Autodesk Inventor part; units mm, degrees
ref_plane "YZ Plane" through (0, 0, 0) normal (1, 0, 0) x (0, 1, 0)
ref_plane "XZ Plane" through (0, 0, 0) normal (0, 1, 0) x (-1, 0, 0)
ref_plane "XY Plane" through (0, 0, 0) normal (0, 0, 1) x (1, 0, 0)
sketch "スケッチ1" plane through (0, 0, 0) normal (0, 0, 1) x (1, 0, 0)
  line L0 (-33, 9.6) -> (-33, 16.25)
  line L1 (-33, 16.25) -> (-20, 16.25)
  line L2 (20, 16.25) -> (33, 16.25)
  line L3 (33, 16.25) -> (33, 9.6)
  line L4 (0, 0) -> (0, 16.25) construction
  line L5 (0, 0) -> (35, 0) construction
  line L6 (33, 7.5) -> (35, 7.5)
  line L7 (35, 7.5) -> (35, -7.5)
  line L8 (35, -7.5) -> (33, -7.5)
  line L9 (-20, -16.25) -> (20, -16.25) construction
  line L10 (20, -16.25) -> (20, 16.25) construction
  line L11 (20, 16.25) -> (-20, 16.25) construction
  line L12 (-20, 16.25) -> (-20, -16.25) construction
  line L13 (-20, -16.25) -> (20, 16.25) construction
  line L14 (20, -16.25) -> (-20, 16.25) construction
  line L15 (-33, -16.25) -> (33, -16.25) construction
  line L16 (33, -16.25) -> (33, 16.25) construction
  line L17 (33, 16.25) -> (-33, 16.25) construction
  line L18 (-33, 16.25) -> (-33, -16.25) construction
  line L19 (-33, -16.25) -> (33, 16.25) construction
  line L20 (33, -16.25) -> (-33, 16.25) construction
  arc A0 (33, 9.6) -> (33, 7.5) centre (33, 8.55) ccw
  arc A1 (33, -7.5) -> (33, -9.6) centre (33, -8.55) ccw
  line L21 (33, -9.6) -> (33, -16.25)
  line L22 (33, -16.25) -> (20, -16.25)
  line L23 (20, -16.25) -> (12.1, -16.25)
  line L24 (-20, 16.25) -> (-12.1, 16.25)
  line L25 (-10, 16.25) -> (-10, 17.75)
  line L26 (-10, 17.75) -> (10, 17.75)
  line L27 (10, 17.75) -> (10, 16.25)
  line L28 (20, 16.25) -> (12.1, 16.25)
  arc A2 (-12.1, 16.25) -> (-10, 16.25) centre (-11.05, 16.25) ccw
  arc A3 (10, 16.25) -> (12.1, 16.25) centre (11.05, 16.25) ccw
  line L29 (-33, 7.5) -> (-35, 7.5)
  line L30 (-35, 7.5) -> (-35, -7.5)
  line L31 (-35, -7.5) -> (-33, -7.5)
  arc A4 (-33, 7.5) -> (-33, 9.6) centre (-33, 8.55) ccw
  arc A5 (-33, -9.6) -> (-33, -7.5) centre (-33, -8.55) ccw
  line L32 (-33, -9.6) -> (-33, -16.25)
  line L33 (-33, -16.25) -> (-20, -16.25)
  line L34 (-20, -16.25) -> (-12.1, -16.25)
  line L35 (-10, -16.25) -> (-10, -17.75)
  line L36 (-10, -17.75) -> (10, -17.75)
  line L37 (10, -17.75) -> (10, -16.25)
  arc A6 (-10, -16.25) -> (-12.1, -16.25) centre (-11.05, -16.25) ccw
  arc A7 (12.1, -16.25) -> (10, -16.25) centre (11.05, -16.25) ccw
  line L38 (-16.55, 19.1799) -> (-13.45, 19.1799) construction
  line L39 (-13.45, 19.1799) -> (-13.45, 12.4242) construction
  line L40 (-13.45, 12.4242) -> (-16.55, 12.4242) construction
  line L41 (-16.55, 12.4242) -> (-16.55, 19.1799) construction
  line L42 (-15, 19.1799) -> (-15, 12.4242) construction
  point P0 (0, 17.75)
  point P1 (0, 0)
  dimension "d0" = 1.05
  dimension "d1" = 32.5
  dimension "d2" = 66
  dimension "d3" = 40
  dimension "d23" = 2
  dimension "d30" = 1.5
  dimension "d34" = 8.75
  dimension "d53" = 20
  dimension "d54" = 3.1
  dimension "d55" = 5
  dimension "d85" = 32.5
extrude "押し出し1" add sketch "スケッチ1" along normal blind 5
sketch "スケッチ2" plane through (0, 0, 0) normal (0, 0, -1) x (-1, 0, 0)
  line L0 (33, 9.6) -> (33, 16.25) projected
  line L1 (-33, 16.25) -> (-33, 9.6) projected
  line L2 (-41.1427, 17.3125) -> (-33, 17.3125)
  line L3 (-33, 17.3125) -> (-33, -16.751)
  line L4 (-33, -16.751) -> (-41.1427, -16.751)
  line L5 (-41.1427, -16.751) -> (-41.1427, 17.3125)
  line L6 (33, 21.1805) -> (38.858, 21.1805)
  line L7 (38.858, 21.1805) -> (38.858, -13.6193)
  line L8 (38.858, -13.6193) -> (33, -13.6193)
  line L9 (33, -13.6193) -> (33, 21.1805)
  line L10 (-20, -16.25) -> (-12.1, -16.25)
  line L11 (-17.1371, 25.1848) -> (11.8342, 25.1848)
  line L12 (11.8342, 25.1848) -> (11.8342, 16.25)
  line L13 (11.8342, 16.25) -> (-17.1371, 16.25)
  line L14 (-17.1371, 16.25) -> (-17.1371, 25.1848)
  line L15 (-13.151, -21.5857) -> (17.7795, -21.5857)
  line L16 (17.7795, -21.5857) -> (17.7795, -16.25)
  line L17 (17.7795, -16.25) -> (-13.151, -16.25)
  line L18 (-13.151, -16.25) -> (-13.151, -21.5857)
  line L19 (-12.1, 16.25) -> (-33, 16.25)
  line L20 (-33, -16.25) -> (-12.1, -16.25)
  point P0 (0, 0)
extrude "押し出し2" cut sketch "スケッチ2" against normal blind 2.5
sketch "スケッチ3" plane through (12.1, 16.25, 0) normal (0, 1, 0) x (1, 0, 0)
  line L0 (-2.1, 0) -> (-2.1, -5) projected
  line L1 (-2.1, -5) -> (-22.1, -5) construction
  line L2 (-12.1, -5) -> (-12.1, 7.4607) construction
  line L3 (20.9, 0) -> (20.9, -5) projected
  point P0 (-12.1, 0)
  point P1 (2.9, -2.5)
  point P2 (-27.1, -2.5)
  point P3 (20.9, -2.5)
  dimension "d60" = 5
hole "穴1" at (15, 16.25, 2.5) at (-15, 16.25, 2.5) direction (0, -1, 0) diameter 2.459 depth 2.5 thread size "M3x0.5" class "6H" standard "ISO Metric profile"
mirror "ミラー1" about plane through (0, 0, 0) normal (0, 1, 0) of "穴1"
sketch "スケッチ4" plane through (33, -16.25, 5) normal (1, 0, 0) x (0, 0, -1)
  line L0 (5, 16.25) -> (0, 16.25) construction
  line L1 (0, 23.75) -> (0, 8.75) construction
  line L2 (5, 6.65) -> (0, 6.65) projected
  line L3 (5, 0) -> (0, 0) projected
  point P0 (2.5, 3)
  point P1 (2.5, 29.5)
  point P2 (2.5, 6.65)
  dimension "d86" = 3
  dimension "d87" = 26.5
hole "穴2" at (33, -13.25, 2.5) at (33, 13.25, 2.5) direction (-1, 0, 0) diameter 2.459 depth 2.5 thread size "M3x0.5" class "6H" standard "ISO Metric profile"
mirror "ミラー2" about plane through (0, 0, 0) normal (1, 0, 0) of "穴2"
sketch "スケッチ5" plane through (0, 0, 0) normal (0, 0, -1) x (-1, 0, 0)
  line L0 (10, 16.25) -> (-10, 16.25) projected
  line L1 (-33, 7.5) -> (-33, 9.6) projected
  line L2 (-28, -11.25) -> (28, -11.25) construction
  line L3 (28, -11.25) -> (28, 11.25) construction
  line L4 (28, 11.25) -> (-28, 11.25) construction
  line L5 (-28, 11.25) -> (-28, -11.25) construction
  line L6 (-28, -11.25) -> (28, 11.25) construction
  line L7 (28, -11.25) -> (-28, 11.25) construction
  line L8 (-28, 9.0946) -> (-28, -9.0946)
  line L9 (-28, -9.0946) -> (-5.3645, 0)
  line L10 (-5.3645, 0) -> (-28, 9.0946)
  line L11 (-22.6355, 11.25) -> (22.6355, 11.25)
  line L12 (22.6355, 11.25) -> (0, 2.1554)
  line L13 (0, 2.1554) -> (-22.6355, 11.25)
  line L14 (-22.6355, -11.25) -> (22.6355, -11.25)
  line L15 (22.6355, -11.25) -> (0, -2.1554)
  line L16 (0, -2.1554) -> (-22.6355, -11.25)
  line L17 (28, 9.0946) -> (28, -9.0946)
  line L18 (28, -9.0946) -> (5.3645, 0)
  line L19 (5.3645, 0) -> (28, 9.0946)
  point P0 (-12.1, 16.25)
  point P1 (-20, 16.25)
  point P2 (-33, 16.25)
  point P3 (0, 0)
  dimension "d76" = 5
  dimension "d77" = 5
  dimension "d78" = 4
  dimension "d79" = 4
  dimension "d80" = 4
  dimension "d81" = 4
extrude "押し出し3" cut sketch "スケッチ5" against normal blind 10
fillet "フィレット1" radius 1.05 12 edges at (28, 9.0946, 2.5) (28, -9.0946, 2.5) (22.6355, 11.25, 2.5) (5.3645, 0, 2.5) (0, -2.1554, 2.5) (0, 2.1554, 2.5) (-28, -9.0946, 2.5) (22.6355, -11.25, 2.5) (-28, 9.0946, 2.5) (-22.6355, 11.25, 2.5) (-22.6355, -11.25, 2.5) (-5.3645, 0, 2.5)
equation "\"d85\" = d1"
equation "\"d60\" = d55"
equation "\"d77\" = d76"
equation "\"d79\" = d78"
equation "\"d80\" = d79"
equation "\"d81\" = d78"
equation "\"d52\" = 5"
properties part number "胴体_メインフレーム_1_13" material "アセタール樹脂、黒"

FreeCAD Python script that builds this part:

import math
import FreeCAD as App
import Part
import Sketcher
from FreeCAD import Vector
Q = App.Units.Quantity


def edges_at(feature, points):
    """Names of the edges that pass closest to the given points."""
    edges = feature.Shape.Edges
    near = lambda p: min(range(len(edges)), key=lambda i: edges[i].distToShape(Part.Vertex(*p))[0])
    return sorted({f"Edge{near(p) + 1}" for p in points})

doc = App.newDocument("Part")
body = doc.addObject("PartDesign::Body", "Body")

# Sketch on XY plane
sketch1 = body.newObject("Sketcher::SketchObject", "Sketch")
sketch1.AttachmentSupport = (doc.getObject("XY_Plane"), [""])
sketch1.MapMode = "FlatFace"
sketch1.addGeometry([
    Part.LineSegment(Vector(-33, 16.2, 0), Vector(-33, 9.6, 0)),  # 0
    Part.ArcOfCircle(Part.Circle(Vector(-33, 8.6, 0), Vector(0, 0, 1), 1.1), math.radians(-90), math.radians(90)),  # 1
    Part.LineSegment(Vector(-33, 7.5, 0), Vector(-35, 7.5, 0)),  # 2
    Part.LineSegment(Vector(-35, 7.5, 0), Vector(-35, -7.5, 0)),  # 3
    Part.LineSegment(Vector(-35, -7.5, 0), Vector(-33, -7.5, 0)),  # 4
    Part.ArcOfCircle(Part.Circle(Vector(-33, -8.6, 0), Vector(0, 0, 1), 1), math.radians(-90), math.radians(90)),  # 5
    Part.LineSegment(Vector(-33, -9.6, 0), Vector(-33, -16.2, 0)),  # 6
    Part.LineSegment(Vector(-33, -16.2, 0), Vector(-12.1, -16.2, 0)),  # 7
    Part.ArcOfCircle(Part.Circle(Vector(-11.1, -16.2, 0), Vector(0, 0, 1), 1.1), math.radians(0), math.radians(180)),  # 8
    Part.LineSegment(Vector(-10, -16.2, 0), Vector(-10, -17.8, 0)),  # 9
    Part.LineSegment(Vector(-10, -17.8, 0), Vector(10, -17.8, 0)),  # 10
    Part.LineSegment(Vector(10, -17.8, 0), Vector(10, -16.2, 0)),  # 11
    Part.ArcOfCircle(Part.Circle(Vector(11.1, -16.2, 0), Vector(0, 0, 1), 1), math.radians(0), math.radians(180)),  # 12
    Part.LineSegment(Vector(12.1, -16.2, 0), Vector(33, -16.2, 0)),  # 13
    Part.LineSegment(Vector(33, -16.2, 0), Vector(33, -9.6, 0)),  # 14
    Part.ArcOfCircle(Part.Circle(Vector(33, -8.6, 0), Vector(0, 0, 1), 1.1), math.radians(90), math.radians(270)),  # 15
    Part.LineSegment(Vector(33, -7.5, 0), Vector(35, -7.5, 0)),  # 16
    Part.LineSegment(Vector(35, -7.5, 0), Vector(35, 7.5, 0)),  # 17
    Part.LineSegment(Vector(35, 7.5, 0), Vector(33, 7.5, 0)),  # 18
    Part.ArcOfCircle(Part.Circle(Vector(33, 8.6, 0), Vector(0, 0, 1), 1), math.radians(90), math.radians(270)),  # 19
    Part.LineSegment(Vector(33, 9.6, 0), Vector(33, 16.2, 0)),  # 20
    Part.LineSegment(Vector(33, 16.2, 0), Vector(12.1, 16.2, 0)),  # 21
    Part.ArcOfCircle(Part.Circle(Vector(11.1, 16.2, 0), Vector(0, 0, 1), 1.1), math.radians(180), math.radians(360)),  # 22
    Part.LineSegment(Vector(10, 16.2, 0), Vector(10, 17.8, 0)),  # 23
    Part.LineSegment(Vector(10, 17.8, 0), Vector(-10, 17.8, 0)),  # 24
    Part.LineSegment(Vector(-10, 17.8, 0), Vector(-10, 16.2, 0)),  # 25
    Part.ArcOfCircle(Part.Circle(Vector(-11.1, 16.2, 0), Vector(0, 0, 1), 1), math.radians(180), math.radians(360)),  # 26
    Part.LineSegment(Vector(-12.1, 16.2, 0), Vector(-33, 16.2, 0)),  # 27
], False)
sketch1.addConstraint([
    Sketcher.Constraint("Coincident", 0, 2, 1, 2),
    Sketcher.Constraint("Tangent", 1, 1, 2, 1),
    Sketcher.Constraint("Coincident", 2, 2, 3, 1),
    Sketcher.Constraint("Coincident", 3, 2, 4, 1),
    Sketcher.Constraint("Tangent", 4, 2, 5, 2),
    Sketcher.Constraint("Coincident", 5, 1, 6, 1),
    Sketcher.Constraint("Coincident", 6, 2, 7, 1),
    Sketcher.Constraint("Coincident", 7, 2, 8, 2),
    Sketcher.Constraint("Tangent", 8, 1, 9, 1),
    Sketcher.Constraint("Coincident", 9, 2, 10, 1),
    Sketcher.Constraint("Coincident", 10, 2, 11, 1),
    Sketcher.Constraint("Tangent", 11, 2, 12, 2),
    Sketcher.Constraint("Coincident", 12, 1, 13, 1),
    Sketcher.Constraint("Coincident", 13, 2, 14, 1),
    Sketcher.Constraint("Coincident", 14, 2, 15, 2),
    Sketcher.Constraint("Tangent", 15, 1, 16, 1),
    Sketcher.Constraint("Coincident", 16, 2, 17, 1),
    Sketcher.Constraint("Coincident", 17, 2, 18, 1),
    Sketcher.Constraint("Tangent", 18, 2, 19, 2),
    Sketcher.Constraint("Coincident", 19, 1, 20, 1),
    Sketcher.Constraint("Coincident", 20, 2, 21, 1),
    Sketcher.Constraint("Coincident", 21, 2, 22, 2),
    Sketcher.Constraint("Tangent", 22, 1, 23, 1),
    Sketcher.Constraint("Coincident", 23, 2, 24, 1),
    Sketcher.Constraint("Coincident", 24, 2, 25, 1),
    Sketcher.Constraint("Tangent", 25, 2, 26, 2),
    Sketcher.Constraint("Coincident", 26, 1, 27, 1),
    Sketcher.Constraint("Coincident", 27, 2, 0, 1),
    Sketcher.Constraint("Vertical", 0),
    Sketcher.Constraint("Horizontal", 2),
    Sketcher.Constraint("Vertical", 3),
    Sketcher.Constraint("Horizontal", 4),
    Sketcher.Constraint("Vertical", 6),
    Sketcher.Constraint("Horizontal", 7),
    Sketcher.Constraint("Vertical", 9),
    Sketcher.Constraint("Horizontal", 10),
    Sketcher.Constraint("Vertical", 11),
    Sketcher.Constraint("Horizontal", 13),
    Sketcher.Constraint("Vertical", 14),
    Sketcher.Constraint("Horizontal", 16),
    Sketcher.Constraint("Vertical", 17),
    Sketcher.Constraint("Horizontal", 18),
    Sketcher.Constraint("Vertical", 20),
    Sketcher.Constraint("Horizontal", 21),
    Sketcher.Constraint("Vertical", 23),
    Sketcher.Constraint("Horizontal", 24),
    Sketcher.Constraint("Vertical", 25),
    Sketcher.Constraint("Horizontal", 27),
    Sketcher.Constraint("Equal", 1, 5),
    Sketcher.Constraint("Equal", 5, 8),
    Sketcher.Constraint("Equal", 8, 12),
    Sketcher.Constraint("Equal", 12, 15),
    Sketcher.Constraint("Equal", 15, 19),
    Sketcher.Constraint("Equal", 19, 22),
    Sketcher.Constraint("Equal", 22, 26),
    Sketcher.Constraint("Symmetric", 1, 3, 15, 3, -1, 1),
    Sketcher.Constraint("Symmetric", 5, 3, 19, 3, -1, 1),
    Sketcher.Constraint("Symmetric", 8, 3, 22, 3, -1, 1),
    Sketcher.Constraint("Symmetric", 12, 3, 26, 3, -1, 1),
    Sketcher.Constraint("Symmetric", 6, 2, 20, 2, -1, 1),
    Sketcher.Constraint("Symmetric", 13, 2, 27, 2, -1, 1),
    Sketcher.Constraint("Symmetric", 8, 3, 12, 3, -2),
    Sketcher.Constraint("Symmetric", 5, 3, 15, 3, -2),
    Sketcher.Constraint("Symmetric", 6, 2, 13, 2, -2),
    Sketcher.Constraint("Horizontal", 12, 3, 6, 2),
    Sketcher.Constraint("Vertical", 5, 3, 0, 2),
    Sketcher.Constraint("Equal", 4, 16),
    Sketcher.Constraint("Equal", 11, 23),
    Sketcher.Constraint("DistanceX", 2, 2, 2, 1, Q("2 mm")),
    Sketcher.Constraint("DistanceX", 10, 1, 10, 2, Q("20 mm")),
    Sketcher.Constraint("Radius", 1, Q("1.05 mm")),
    Sketcher.Constraint("DistanceY", 9, 2, 9, 1, Q("1.5 mm")),
    Sketcher.Constraint("DistanceX", 5, 3, 15, 3, Q("66 mm")),
    Sketcher.Constraint("DistanceY", 12, 3, 22, 3, Q("32.5 mm")),
    Sketcher.Constraint("DistanceY", 3, 2, 3, 1, Q("15 mm")),
])
pad1 = body.newObject("PartDesign::Pad", "Pad")
pad1.Profile = sketch1
pad1.Length = 5

# Sketch on XY plane
sketch2 = body.newObject("Sketcher::SketchObject", "Sketch001")
sketch2.AttachmentSupport = (doc.getObject("XY_Plane"), [""])
sketch2.MapMode = "FlatFace"
sketch2.addGeometry([
    Part.LineSegment(Vector(-33, 21, 0), Vector(-33, -14, 0)),  # 0
    Part.LineSegment(Vector(-33, -14, 0), Vector(-39, -14, 0)),  # 1
    Part.LineSegment(Vector(-39, -14, 0), Vector(-39, 21, 0)),  # 2
    Part.LineSegment(Vector(-39, 21, 0), Vector(-33, 21, 0)),  # 3
    Part.LineSegment(Vector(-18, -16, 0), Vector(13, -16, 0)),  # 4
    Part.LineSegment(Vector(13, -16, 0), Vector(13, -22, 0)),  # 5
    Part.LineSegment(Vector(13, -22, 0), Vector(-18, -22, 0)),  # 6
    Part.LineSegment(Vector(-18, -22, 0), Vector(-18, -16, 0)),  # 7
    Part.LineSegment(Vector(33, -17, 0), Vector(33, 17, 0)),  # 8
    Part.LineSegment(Vector(33, 17, 0), Vector(41, 17, 0)),  # 9
    Part.LineSegment(Vector(41, 17, 0), Vector(41, -17, 0)),  # 10
    Part.LineSegment(Vector(41, -17, 0), Vector(33, -17, 0)),  # 11
    Part.LineSegment(Vector(17, 25, 0), Vector(17, 16, 0)),  # 12
    Part.LineSegment(Vector(17, 16, 0), Vector(-12, 16, 0)),  # 13
    Part.LineSegment(Vector(-12, 16, 0), Vector(-12, 25, 0)),  # 14
    Part.LineSegment(Vector(-12, 25, 0), Vector(17, 25, 0)),  # 15
], False)
sketch2.addConstraint([
    Sketcher.Constraint("Coincident", 0, 2, 1, 1),
    Sketcher.Constraint("Coincident", 1, 2, 2, 1),
    Sketcher.Constraint("Coincident", 2, 2, 3, 1),
    Sketcher.Constraint("Coincident", 3, 2, 0, 1),
    Sketcher.Constraint("Coincident", 4, 2, 5, 1),
    Sketcher.Constraint("Coincident", 5, 2, 6, 1),
    Sketcher.Constraint("Coincident", 6, 2, 7, 1),
    Sketcher.Constraint("Coincident", 7, 2, 4, 1),
    Sketcher.Constraint("Coincident", 8, 2, 9, 1),
    Sketcher.Constraint("Coincident", 9, 2, 10, 1),
    Sketcher.Constraint("Coincident", 10, 2, 11, 1),
    Sketcher.Constraint("Coincident", 11, 2, 8, 1),
    Sketcher.Constraint("Coincident", 12, 2, 13, 1),
    Sketcher.Constraint("Coincident", 13, 2, 14, 1),
    Sketcher.Constraint("Coincident", 14, 2, 15, 1),
    Sketcher.Constraint("Coincident", 15, 2, 12, 1),
    Sketcher.Constraint("Vertical", 0),
    Sketcher.Constraint("Horizontal", 1),
    Sketcher.Constraint("Vertical", 2),
    Sketcher.Constraint("Horizontal", 3),
    Sketcher.Constraint("Horizontal", 4),
    Sketcher.Constraint("Vertical", 5),
    Sketcher.Constraint("Horizontal", 6),
    Sketcher.Constraint("Vertical", 7),
    Sketcher.Constraint("Vertical", 8),
    Sketcher.Constraint("Horizontal", 9),
    Sketcher.Constraint("Vertical", 10),
    Sketcher.Constraint("Horizontal", 11),
    Sketcher.Constraint("Vertical", 12),
    Sketcher.Constraint("Horizontal", 13),
    Sketcher.Constraint("Vertical", 14),
    Sketcher.Constraint("Horizontal", 15),
    Sketcher.Constraint("DistanceX", 0, 2, -1, 1, Q("33 mm")),
    Sketcher.Constraint("DistanceX", -1, 1, 8, 2, Q("33 mm")),
    Sketcher.Constraint("DistanceY", 4, 2, 12, 2, Q("32.5 mm")),
    Sketcher.Constraint("DistanceX", 1, 2, 1, 1, Q("5.858 mm")),
    Sketcher.Constraint("DistanceY", 4, 2, -1, 1, Q("16.25 mm")),
    Sketcher.Constraint("DistanceX", 4, 1, 4, 2, Q("30.9305 mm")),
    Sketcher.Constraint("DistanceX", 9, 1, 9, 2, Q("8.1427 mm")),
    Sketcher.Constraint("DistanceX", 13, 2, 13, 1, Q("28.9713 mm")),
    Sketcher.Constraint("DistanceY", 0, 2, 0, 1, Q("34.7998 mm")),
    Sketcher.Constraint("DistanceY", 5, 2, 5, 1, Q("5.3357 mm")),
    Sketcher.Constraint("DistanceY", 8, 1, 8, 2, Q("34.0635 mm")),
    Sketcher.Constraint("DistanceY", 12, 2, 12, 1, Q("8.9348 mm")),
    Sketcher.Constraint("DistanceX", -1, 1, 4, 2, Q("13.151 mm")),
    Sketcher.Constraint("DistanceY", 10, 2, -1, 1, Q("16.751 mm")),
    Sketcher.Constraint("DistanceX", -1, 1, 12, 2, Q("17.137 mm")),
    Sketcher.Constraint("DistanceY", 8, 2, 3, 2, Q("3.868 mm")),
])
pocket1 = body.newObject("PartDesign::Pocket", "Pocket")
pocket1.Profile = sketch2
pocket1.Length = 2.5
pocket1.Reversed = True

# Sketch on XZ plane
sketch3 = body.newObject("Sketcher::SketchObject", "Sketch002")
sketch3.AttachmentSupport = (doc.getObject("XZ_Plane"), [""])
sketch3.MapMode = "FlatFace"
sketch3.AttachmentOffset = App.Placement(Vector(0, 0, -16.25), App.Rotation())
sketch3.addGeometry([
    Part.Circle(Vector(15, 2.5, 0), Vector(0, 0, 1), 1.2),
    Part.Circle(Vector(-15, 2.5, 0), Vector(0, 0, 1), 1.2),
], False)
sketch3.addConstraint([
    Sketcher.Constraint("Equal", 0, 1),
    Sketcher.Constraint("Symmetric", 0, 3, 1, 3, -2),
    Sketcher.Constraint("Diameter", 0, Q("2.459 mm")),
    Sketcher.Constraint("DistanceX", -1, 1, 0, 3, Q("15 mm")),
    Sketcher.Constraint("DistanceY", -1, 1, 0, 3, Q("2.5 mm")),
])
doc.recompute()
hole = body.newObject("PartDesign::Hole", "Hole")
hole.Profile = sketch3
hole.ThreadType = "None"
hole.Diameter = 2.459
hole.DepthType = "Dimension"
hole.Depth = 2.5
hole.DrillPoint = "Flat"
hole.Reversed = True
doc.recompute()

mirrored = body.newObject("PartDesign::Mirrored", "Mirrored")
mirrored.Originals = [hole]
mirrored.MirrorPlane = (doc.getObject("XZ_Plane"), [""])
body.Tip = mirrored

# Sketch on YZ plane
sketch4 = body.newObject("Sketcher::SketchObject", "Sketch003")
sketch4.AttachmentSupport = (doc.getObject("YZ_Plane"), [""])
sketch4.MapMode = "FlatFace"
sketch4.AttachmentOffset = App.Placement(Vector(0, 0, 33), App.Rotation())
sketch4.addGeometry([
    Part.Circle(Vector(-13.2, 2.5, 0), Vector(0, 0, 1), 1.2),
    Part.Circle(Vector(13.2, 2.5, 0), Vector(0, 0, 1), 1.2),
], False)
sketch4.addConstraint([
    Sketcher.Constraint("Equal", 0, 1),
    Sketcher.Constraint("Symmetric", 0, 3, 1, 3, -2),
    Sketcher.Constraint("Diameter", 0, Q("2.459 mm")),
    Sketcher.Constraint("DistanceY", -1, 1, 0, 3, Q("2.5 mm")),
    Sketcher.Constraint("DistanceX", 0, 3, 1, 3, Q("26.5 mm")),
])
doc.recompute()
hole2 = body.newObject("PartDesign::Hole", "Hole001")
hole2.Profile = sketch4
hole2.ThreadType = "None"
hole2.Diameter = 2.459
hole2.DepthType = "Dimension"
hole2.Depth = 2.5
hole2.DrillPoint = "Flat"
doc.recompute()

mirrored2 = body.newObject("PartDesign::Mirrored", "Mirrored001")
mirrored2.Originals = [hole2]
mirrored2.MirrorPlane = (doc.getObject("YZ_Plane"), [""])
body.Tip = mirrored2

# Sketch on XY plane
sketch5 = body.newObject("Sketcher::SketchObject", "Sketch004")
sketch5.AttachmentSupport = (doc.getObject("XY_Plane"), [""])
sketch5.MapMode = "FlatFace"
sketch5.addGeometry([
    Part.LineSegment(Vector(5, 0, 0), Vector(28, 9, 0)),  # 0
    Part.LineSegment(Vector(28, 9, 0), Vector(28, -9, 0)),  # 1
    Part.LineSegment(Vector(28, -9, 0), Vector(5, 0, 0)),  # 2
    Part.LineSegment(Vector(-23, 11, 0), Vector(23, 11, 0)),  # 3
    Part.LineSegment(Vector(23, 11, 0), Vector(0, 2, 0)),  # 4
    Part.LineSegment(Vector(0, 2, 0), Vector(-23, 11, 0)),  # 5
    Part.LineSegment(Vector(0, -2, 0), Vector(23, -11, 0)),  # 6
    Part.LineSegment(Vector(23, -11, 0), Vector(-23, -11, 0)),  # 7
    Part.LineSegment(Vector(-23, -11, 0), Vector(0, -2, 0)),  # 8
    Part.LineSegment(Vector(-28, -9, 0), Vector(-28, 9, 0)),  # 9
    Part.LineSegment(Vector(-28, 9, 0), Vector(-5, 0, 0)),  # 10
    Part.LineSegment(Vector(-5, 0, 0), Vector(-28, -9, 0)),  # 11
], False)
sketch5.addConstraint([
    Sketcher.Constraint("Coincident", 0, 2, 1, 1),
    Sketcher.Constraint("Coincident", 1, 2, 2, 1),
    Sketcher.Constraint("Coincident", 2, 2, 0, 1),
    Sketcher.Constraint("Coincident", 3, 2, 4, 1),
    Sketcher.Constraint("Coincident", 4, 2, 5, 1),
    Sketcher.Constraint("Coincident", 5, 2, 3, 1),
    Sketcher.Constraint("Coincident", 6, 2, 7, 1),
    Sketcher.Constraint("Coincident", 7, 2, 8, 1),
    Sketcher.Constraint("Coincident", 8, 2, 6, 1),
    Sketcher.Constraint("Coincident", 9, 2, 10, 1),
    Sketcher.Constraint("Coincident", 10, 2, 11, 1),
    Sketcher.Constraint("Coincident", 11, 2, 9, 1),
    Sketcher.Constraint("Vertical", 1),
    Sketcher.Constraint("Horizontal", 3),
    Sketcher.Constraint("Horizontal", 7),
    Sketcher.Constraint("Vertical", 9),
    Sketcher.Constraint("Symmetric", 5, 2, 6, 2, -1, 1),
    Sketcher.Constraint("Symmetric", 4, 2, 8, 2, -1, 1),
    Sketcher.Constraint("Symmetric", 1, 2, 9, 2, -1, 1),
    Sketcher.Constraint("Symmetric", 2, 2, 10, 2, -1, 1),
    Sketcher.Constraint("PointOnObject", 2, 2, -1),
    Sketcher.Constraint("PointOnObject", 4, 2, -2),
    Sketcher.Constraint("Parallel", 0, 4),
    Sketcher.Constraint("Parallel", 2, 5),
    Sketcher.Constraint("Parallel", 4, 8),
    Sketcher.Constraint("Parallel", 8, 11),
    Sketcher.Constraint("Horizontal", 0, 2, 9, 2),
    Sketcher.Constraint("Equal", 2, 4),
    Sketcher.Constraint("DistanceX", -1, 1, 0, 2, Q("28 mm")),
    Sketcher.Constraint("Angle", 0, Q("21.8895 deg")),
    Sketcher.Constraint("DistanceY", 6, 2, 3, 2, Q("22.5 mm")),
    Sketcher.Constraint("DistanceX", 3, 1, 3, 2, Q("45.271 mm")),
])
pocket2 = body.newObject("PartDesign::Pocket", "Pocket001")
pocket2.Profile = sketch5
pocket2.Length = 10
pocket2.Reversed = True
doc.recompute()

fillet = body.newObject("PartDesign::Fillet", "Fillet")
fillet.Base = (pocket2, edges_at(pocket2, [
    (28, 9.095, 2.5),
    (28, -9.095, 2.5),
    (22.636, 11.25, 2.5),
    (5.364, 0, 2.5),
    (0, -2.155, 2.5),
    (0, 2.155, 2.5),
    (-28, -9.095, 2.5),
    (22.636, -11.25, 2.5),
    (-28, 9.095, 2.5),
    (-22.636, 11.25, 2.5),
    (-22.636, -11.25, 2.5),
    (-5.364, 0, 2.5),
]))
fillet.Radius = 1.05

doc.recompute()
